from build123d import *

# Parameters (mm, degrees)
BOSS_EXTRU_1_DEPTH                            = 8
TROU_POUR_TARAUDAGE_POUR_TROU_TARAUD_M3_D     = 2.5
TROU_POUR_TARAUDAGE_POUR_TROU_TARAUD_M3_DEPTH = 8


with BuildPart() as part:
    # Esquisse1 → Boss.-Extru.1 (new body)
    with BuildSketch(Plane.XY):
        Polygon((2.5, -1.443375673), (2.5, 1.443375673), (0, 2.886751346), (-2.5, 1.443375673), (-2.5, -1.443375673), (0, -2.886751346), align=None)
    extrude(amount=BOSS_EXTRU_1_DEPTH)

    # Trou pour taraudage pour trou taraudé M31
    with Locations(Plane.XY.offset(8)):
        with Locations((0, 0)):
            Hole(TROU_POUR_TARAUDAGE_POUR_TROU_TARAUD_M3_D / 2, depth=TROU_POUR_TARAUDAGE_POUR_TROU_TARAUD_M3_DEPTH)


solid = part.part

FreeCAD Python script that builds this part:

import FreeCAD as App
import Part
import Sketcher
from FreeCAD import Vector
Q = App.Units.Quantity


def add_polygon(sketch, points):
    """Adds a closed chain of lines whose ends are joined by coincident constraints."""
    first, n = sketch.GeometryCount, len(points)
    for a, b in zip(points, points[1:] + points[:1]):
        sketch.addGeometry(Part.LineSegment(App.Vector(*a, 0), App.Vector(*b, 0)), False)
    for i in range(n):
        sketch.addConstraint(Sketcher.Constraint("Coincident", first + i, 2, first + (i + 1) % n, 1))

doc = App.newDocument("Part")
body = doc.addObject("PartDesign::Body", "Body")

sketch1 = body.newObject("Sketcher::SketchObject", "Sketch")
sketch1.AttachmentSupport = (doc.getObject("XY_Plane"), [""])
sketch1.MapMode = "FlatFace"
add_polygon(sketch1, [(2.5, -1.4), (2.5, 1.4), (0, 2.9), (-2.5, 1.4), (-2.5, -1.4), (0, -2.9)])
sketch1.addConstraint(Sketcher.Constraint("Vertical", 0))
sketch1.addConstraint(Sketcher.Constraint("Vertical", 3))
sketch1.addConstraint(Sketcher.Constraint("Symmetric", 0, 2, 3, 2, -1, 1))
sketch1.addConstraint(Sketcher.Constraint("Symmetric", 1, 2, 4, 2, -1, 1))
sketch1.addConstraint(Sketcher.Constraint("PointOnObject", 1, 2, -2))
sketch1.addConstraint(Sketcher.Constraint("Parallel", 2, 5))
sketch1.addConstraint(Sketcher.Constraint("Horizontal", 0, 2, 2, 2))
sketch1.addConstraint(Sketcher.Constraint("Angle", 1, Q("150 deg")))
sketch1.addConstraint(Sketcher.Constraint("DistanceX", 2, 2, 0, 2, 5.0))
sketch1.addConstraint(Sketcher.Constraint("DistanceY", 0, 1, 0, 2, 2.886751))
pad1 = body.newObject("PartDesign::Pad", "Pad")
pad1.Profile = sketch1
pad1.Length = 8

sketch2 = body.newObject("Sketcher::SketchObject", "Sketch001")
sketch2.AttachmentSupport = (doc.getObject("XY_Plane"), [""])
sketch2.MapMode = "FlatFace"
sketch2.AttachmentOffset = App.Placement(Vector(0, 0, 8), App.Rotation())
sketch2.addGeometry(Part.Circle(Vector(0, 0, 0), Vector(0, 0, 1), 1.2), False)
sketch2.addConstraint(Sketcher.Constraint("Coincident", 0, 3, -1, 1))
sketch2.addConstraint(Sketcher.Constraint("Diameter", 0, 2.5))
doc.recompute()
hole = body.newObject("PartDesign::Hole", "Hole")
hole.Profile = sketch2
hole.ThreadType = "None"
hole.Diameter = 2.5
hole.DepthType = "Dimension"
hole.Depth = 8
hole.DrillPoint = "Flat"

doc.recompute()
